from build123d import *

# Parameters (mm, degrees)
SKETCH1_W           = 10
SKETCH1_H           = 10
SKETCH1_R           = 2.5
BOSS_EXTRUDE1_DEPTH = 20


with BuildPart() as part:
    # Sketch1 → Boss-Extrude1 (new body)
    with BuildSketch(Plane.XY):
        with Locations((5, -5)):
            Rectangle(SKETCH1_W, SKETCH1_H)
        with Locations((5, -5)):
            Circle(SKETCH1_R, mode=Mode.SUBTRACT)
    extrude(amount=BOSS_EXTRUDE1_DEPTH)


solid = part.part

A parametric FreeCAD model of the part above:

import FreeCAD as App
import Part
import Sketcher
from FreeCAD import Vector

doc = App.newDocument("Part")
params = doc.addObject("Spreadsheet::Sheet", "Params")
for row, (alias, value) in enumerate([
    ("sketch1_diameter", "5 mm"),
    ("sketch1_width", "10 mm"),
    ("pad1_length", "20 mm"),
], start=1):
    params.set(f"A{row}", alias)
    params.set(f"B{row}", "=" + value)
    params.setAlias(f"B{row}", alias)

body = doc.addObject("PartDesign::Body", "Body")

sketch1 = doc.addObject("Sketcher::SketchObject", "Sketch")
body.addObject(sketch1)
sketch1.AttachmentSupport = (doc.XY_Plane, [""])
sketch1.MapMode = "FlatFace"
sketch1.addGeometry([
    Part.LineSegment(Vector(0, 0, 0), Vector(0, -10, 0)),
    Part.LineSegment(Vector(0, -10, 0), Vector(10, -10, 0)),
    Part.LineSegment(Vector(10, -10, 0), Vector(10, 0, 0)),
    Part.LineSegment(Vector(10, 0, 0), Vector(0, 0, 0)),
    Part.Circle(Vector(5, -5, 0), Vector(0, 0, 1), 2.5),
], False)
sketch1.addConstraint([
    Sketcher.Constraint("Coincident", 0, 2, 1, 1),
    Sketcher.Constraint("Coincident", 1, 2, 2, 1),
    Sketcher.Constraint("Coincident", 2, 2, 3, 1),
    Sketcher.Constraint("Coincident", 3, 2, 0, 1),
    Sketcher.Constraint("Vertical", 0),
    Sketcher.Constraint("Horizontal", 1),
    Sketcher.Constraint("Vertical", 2),
    Sketcher.Constraint("Horizontal", 3),
    Sketcher.Constraint("Coincident", 3, 2, -1, 1),
    Sketcher.Constraint("Equal", 3, 0),
    Sketcher.Constraint("Diameter", 4, 5.0),
    Sketcher.Constraint("DistanceX", 1, 1, 1, 2, 10.0),
    Sketcher.Constraint("DistanceX", -1, 1, 4, 3, 5.0),
    Sketcher.Constraint("DistanceY", 4, 3, -1, 1, 5.0),
])
sketch1.setExpression("Constraints[10]", "Params.sketch1_diameter")
sketch1.setExpression("Constraints[11]", "Params.sketch1_width")
pad1 = doc.addObject("PartDesign::Pad", "Pad")
body.addObject(pad1)
pad1.Profile = sketch1
pad1.setExpression("Length", "Params.pad1_length")

doc.recompute()
